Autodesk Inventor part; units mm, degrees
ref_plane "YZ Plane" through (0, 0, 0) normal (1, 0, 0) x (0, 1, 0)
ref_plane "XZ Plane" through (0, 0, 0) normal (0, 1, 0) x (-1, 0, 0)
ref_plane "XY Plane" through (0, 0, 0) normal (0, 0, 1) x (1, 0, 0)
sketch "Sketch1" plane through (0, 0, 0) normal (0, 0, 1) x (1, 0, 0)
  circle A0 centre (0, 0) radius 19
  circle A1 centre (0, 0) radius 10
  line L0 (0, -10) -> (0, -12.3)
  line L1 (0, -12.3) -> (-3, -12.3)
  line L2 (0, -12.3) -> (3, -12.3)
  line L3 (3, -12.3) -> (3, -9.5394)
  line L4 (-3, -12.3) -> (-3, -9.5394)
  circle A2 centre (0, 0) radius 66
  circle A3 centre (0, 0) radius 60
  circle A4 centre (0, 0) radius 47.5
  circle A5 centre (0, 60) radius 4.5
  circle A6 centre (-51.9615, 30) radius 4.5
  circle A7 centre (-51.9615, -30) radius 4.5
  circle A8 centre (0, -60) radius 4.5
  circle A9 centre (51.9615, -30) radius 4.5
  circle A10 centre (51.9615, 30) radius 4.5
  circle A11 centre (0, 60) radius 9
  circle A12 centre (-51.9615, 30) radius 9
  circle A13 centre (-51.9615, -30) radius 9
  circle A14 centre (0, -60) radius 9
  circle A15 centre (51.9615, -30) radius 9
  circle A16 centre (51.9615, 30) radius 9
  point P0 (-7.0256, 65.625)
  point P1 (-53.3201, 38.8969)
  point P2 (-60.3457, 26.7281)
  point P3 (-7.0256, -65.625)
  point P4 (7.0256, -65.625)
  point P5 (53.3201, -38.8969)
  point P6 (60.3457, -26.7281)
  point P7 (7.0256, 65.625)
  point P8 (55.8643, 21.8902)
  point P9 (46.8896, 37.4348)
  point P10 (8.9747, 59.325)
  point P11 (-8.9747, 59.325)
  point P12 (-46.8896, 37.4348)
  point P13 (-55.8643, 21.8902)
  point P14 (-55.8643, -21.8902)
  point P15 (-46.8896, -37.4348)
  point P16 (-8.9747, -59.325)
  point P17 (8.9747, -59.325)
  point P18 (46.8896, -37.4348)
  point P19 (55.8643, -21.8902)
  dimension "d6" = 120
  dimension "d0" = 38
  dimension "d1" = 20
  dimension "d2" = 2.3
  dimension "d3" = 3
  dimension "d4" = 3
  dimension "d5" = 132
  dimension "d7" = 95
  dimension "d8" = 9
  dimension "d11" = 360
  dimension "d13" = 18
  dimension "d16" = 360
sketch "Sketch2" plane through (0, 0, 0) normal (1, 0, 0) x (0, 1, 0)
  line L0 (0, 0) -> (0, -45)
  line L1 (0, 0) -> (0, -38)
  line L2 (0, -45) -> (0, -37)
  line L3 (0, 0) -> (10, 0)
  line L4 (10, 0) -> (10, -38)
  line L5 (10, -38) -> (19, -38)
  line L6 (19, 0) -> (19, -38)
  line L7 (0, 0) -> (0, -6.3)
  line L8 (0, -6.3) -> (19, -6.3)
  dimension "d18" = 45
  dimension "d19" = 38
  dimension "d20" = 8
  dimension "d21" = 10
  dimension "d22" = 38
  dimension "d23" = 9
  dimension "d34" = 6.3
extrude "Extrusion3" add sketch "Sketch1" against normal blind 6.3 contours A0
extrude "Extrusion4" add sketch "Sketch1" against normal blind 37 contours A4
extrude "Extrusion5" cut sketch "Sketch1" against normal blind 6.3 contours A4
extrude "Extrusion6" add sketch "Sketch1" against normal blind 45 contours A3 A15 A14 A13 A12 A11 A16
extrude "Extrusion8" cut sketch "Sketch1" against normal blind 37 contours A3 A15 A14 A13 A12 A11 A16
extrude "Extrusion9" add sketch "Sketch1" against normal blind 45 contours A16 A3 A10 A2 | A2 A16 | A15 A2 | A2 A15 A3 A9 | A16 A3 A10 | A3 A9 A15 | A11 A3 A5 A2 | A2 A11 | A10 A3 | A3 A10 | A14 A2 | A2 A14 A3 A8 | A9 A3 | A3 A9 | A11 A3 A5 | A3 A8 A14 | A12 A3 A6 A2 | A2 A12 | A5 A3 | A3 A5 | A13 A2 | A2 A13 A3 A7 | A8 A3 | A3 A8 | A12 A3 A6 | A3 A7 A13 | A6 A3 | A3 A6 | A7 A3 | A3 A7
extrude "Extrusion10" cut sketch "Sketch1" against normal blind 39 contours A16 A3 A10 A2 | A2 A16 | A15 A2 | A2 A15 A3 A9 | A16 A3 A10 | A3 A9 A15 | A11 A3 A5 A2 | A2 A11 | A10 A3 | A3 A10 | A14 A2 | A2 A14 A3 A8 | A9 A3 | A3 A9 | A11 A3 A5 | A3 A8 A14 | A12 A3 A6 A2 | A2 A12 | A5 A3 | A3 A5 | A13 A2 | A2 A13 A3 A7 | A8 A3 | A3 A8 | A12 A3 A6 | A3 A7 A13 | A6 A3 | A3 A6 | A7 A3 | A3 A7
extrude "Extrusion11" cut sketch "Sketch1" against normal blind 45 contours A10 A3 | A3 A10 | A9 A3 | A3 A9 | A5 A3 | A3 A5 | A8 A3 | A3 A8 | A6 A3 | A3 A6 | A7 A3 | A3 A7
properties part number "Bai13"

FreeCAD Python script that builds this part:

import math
import FreeCAD as App
import Part
import Sketcher
from FreeCAD import Vector

doc = App.newDocument("Part")
body = doc.addObject("PartDesign::Body", "Body")
body.AllowCompound = True

sketch1 = doc.addObject("Sketcher::SketchObject", "Sketch")
body.addObject(sketch1)
sketch1.AttachmentSupport = (doc.XY_Plane, [""])
sketch1.MapMode = "FlatFace"
sketch1.addGeometry([
    Part.Circle(Vector(0, 0, 0), Vector(0, 0, 1), 19),
    Part.ArcOfCircle(Part.Circle(Vector(0, 0, 0), Vector(0, 0, 1), 10), math.radians(-72.542411), math.radians(252.542411)),
    Part.LineSegment(Vector(3, -9.5394, 0), Vector(3, -12.3, 0)),
    Part.LineSegment(Vector(3, -12.3, 0), Vector(-3, -12.3, 0)),
    Part.LineSegment(Vector(-3, -12.3, 0), Vector(-3, -9.5394, 0)),
], False)
sketch1.addConstraint([
    Sketcher.Constraint("Coincident", 1, 1, 2, 1),
    Sketcher.Constraint("Coincident", 2, 2, 3, 1),
    Sketcher.Constraint("Coincident", 3, 2, 4, 1),
    Sketcher.Constraint("Coincident", 4, 2, 1, 2),
    Sketcher.Constraint("Vertical", 2),
    Sketcher.Constraint("Horizontal", 3),
    Sketcher.Constraint("Vertical", 4),
    Sketcher.Constraint("Coincident", 0, 3, -1, 1),
    Sketcher.Constraint("Coincident", 1, 3, -1, 1),
    Sketcher.Constraint("Horizontal", 1, 1, 4, 2),
    Sketcher.Constraint("Diameter", 0, 38.0),
    Sketcher.Constraint("Radius", 1, 10.0),
    Sketcher.Constraint("DistanceX", -1, 1, 1, 1, 3.0),
    Sketcher.Constraint("DistanceY", 2, 2, -1, 1, 12.3),
])
pad1 = doc.addObject("PartDesign::Pad", "Pad")
body.addObject(pad1)
pad1.Profile = sketch1
pad1.Length = 6.3
pad1.Reversed = True

sketch2 = doc.addObject("Sketcher::SketchObject", "Sketch001")
body.addObject(sketch2)
sketch2.AttachmentSupport = (doc.XY_Plane, [""])
sketch2.MapMode = "FlatFace"
sketch2.addGeometry([
    Part.Circle(Vector(0, 0, 0), Vector(0, 0, 1), 47.5),
    Part.Circle(Vector(0, 0, 0), Vector(0, 0, 1), 19),
], False)
sketch2.addConstraint([
    Sketcher.Constraint("Coincident", 0, 3, -1, 1),
    Sketcher.Constraint("Coincident", 1, 3, -1, 1),
    Sketcher.Constraint("Diameter", 0, 95.0),
    Sketcher.Constraint("Diameter", 1, 38.0),
])
pad2 = doc.addObject("PartDesign::Pad", "Pad001")
body.addObject(pad2)
pad2.Profile = sketch2
pad2.Length = 37
pad2.Reversed = True

sketch3 = doc.addObject("Sketcher::SketchObject", "Sketch002")
body.addObject(sketch3)
sketch3.AttachmentSupport = (doc.XY_Plane, [""])
sketch3.MapMode = "FlatFace"
sketch3.addGeometry([
    Part.Circle(Vector(0, 0, 0), Vector(0, 0, 1), 47.5),
    Part.Circle(Vector(0, 0, 0), Vector(0, 0, 1), 19),
], False)
sketch3.addConstraint([
    Sketcher.Constraint("Coincident", 0, 3, -1, 1),
    Sketcher.Constraint("Coincident", 1, 3, -1, 1),
    Sketcher.Constraint("Diameter", 0, 95.0),
    Sketcher.Constraint("Diameter", 1, 38.0),
])
pocket1 = doc.addObject("PartDesign::Pocket", "Pocket")
body.addObject(pocket1)
pocket1.Profile = sketch3
pocket1.Length = 6.3

sketch4 = doc.addObject("Sketcher::SketchObject", "Sketch003")
body.addObject(sketch4)
sketch4.AttachmentSupport = (doc.XY_Plane, [""])
sketch4.MapMode = "FlatFace"
sketch4.addGeometry([
    Part.ArcOfCircle(Part.Circle(Vector(0, 0, 0), Vector(0, 0, 1), 60), math.radians(-21.397565), math.radians(21.397565)),
    Part.ArcOfCircle(Part.Circle(Vector(51.9615, 30, 0), Vector(0, 0, 1), 9), math.radians(124.301101), math.radians(295.698922)),
    Part.ArcOfCircle(Part.Circle(Vector(0, 0, 0), Vector(0, 0, 1), 60), math.radians(38.602458), math.radians(81.397555)),
    Part.ArcOfCircle(Part.Circle(Vector(0, 60, 0), Vector(0, 0, 1), 9), math.radians(-175.698778), math.radians(-4.301222)),
    Part.ArcOfCircle(Part.Circle(Vector(0, 0, 0), Vector(0, 0, 1), 60), math.radians(98.602445), math.radians(141.397542)),
    Part.ArcOfCircle(Part.Circle(Vector(-51.9615, 30, 0), Vector(0, 0, 1), 9), math.radians(-115.698922), math.radians(55.698899)),
    Part.ArcOfCircle(Part.Circle(Vector(0, 0, 0), Vector(0, 0, 1), 60), math.radians(158.602435), math.radians(201.397565)),
    Part.ArcOfCircle(Part.Circle(Vector(-51.9615, -30, 0), Vector(0, 0, 1), 9), math.radians(-55.698899), math.radians(115.698922)),
    Part.ArcOfCircle(Part.Circle(Vector(0, 0, 0), Vector(0, 0, 1), 60), math.radians(-141.397542), math.radians(-98.602445)),
    Part.ArcOfCircle(Part.Circle(Vector(0, -60, 0), Vector(0, 0, 1), 9), math.radians(4.301222), math.radians(175.698778)),
    Part.ArcOfCircle(Part.Circle(Vector(0, 0, 0), Vector(0, 0, 1), 60), math.radians(-81.397555), math.radians(-38.602458)),
    Part.ArcOfCircle(Part.Circle(Vector(51.9615, -30, 0), Vector(0, 0, 1), 9), math.radians(64.301078), math.radians(235.698899)),
    Part.Circle(Vector(0, 0, 0), Vector(0, 0, 1), 47.5),
], False)
sketch4.addConstraint([
    Sketcher.Constraint("Coincident", 0, 2, 1, 2),
    Sketcher.Constraint("Coincident", 1, 1, 2, 1),
    Sketcher.Constraint("Coincident", 2, 2, 3, 2),
    Sketcher.Constraint("Coincident", 3, 1, 4, 1),
    Sketcher.Constraint("Coincident", 4, 2, 5, 2),
    Sketcher.Constraint("Coincident", 5, 1, 6, 1),
    Sketcher.Constraint("Coincident", 6, 2, 7, 2),
    Sketcher.Constraint("Coincident", 7, 1, 8, 1),
    Sketcher.Constraint("Coincident", 8, 2, 9, 2),
    Sketcher.Constraint("Coincident", 9, 1, 10, 1),
    Sketcher.Constraint("Coincident", 10, 2, 11, 2),
    Sketcher.Constraint("Coincident", 11, 1, 0, 1),
    Sketcher.Constraint("Coincident", 0, 3, -1, 1),
    Sketcher.Constraint("Coincident", 2, 3, -1, 1),
    Sketcher.Constraint("Coincident", 4, 3, -1, 1),
    Sketcher.Constraint("Coincident", 6, 3, -1, 1),
    Sketcher.Constraint("Coincident", 8, 3, -1, 1),
    Sketcher.Constraint("Coincident", 10, 3, -1, 1),
    Sketcher.Constraint("Coincident", 12, 3, -1, 1),
    Sketcher.Constraint("Equal", 0, 2),
    Sketcher.Constraint("Equal", 1, 3),
    Sketcher.Constraint("Equal", 2, 4),
    Sketcher.Constraint("Equal", 3, 5),
    Sketcher.Constraint("Equal", 4, 6),
    Sketcher.Constraint("Equal", 5, 7),
    Sketcher.Constraint("Equal", 6, 8),
    Sketcher.Constraint("Equal", 7, 9),
    Sketcher.Constraint("Equal", 8, 10),
    Sketcher.Constraint("Equal", 9, 11),
    Sketcher.Constraint("Symmetric", 1, 3, 7, 3, -1, 1),
    Sketcher.Constraint("Symmetric", 3, 3, 9, 3, -1, 1),
    Sketcher.Constraint("Symmetric", 5, 3, 11, 3, -1, 1),
    Sketcher.Constraint("Symmetric", 1, 3, 5, 3, -2),
    Sketcher.Constraint("PointOnObject", 3, 3, -2),
    Sketcher.Constraint("Diameter", 12, 95.0),
    Sketcher.Constraint("Radius", 0, 60.0),
    Sketcher.Constraint("Radius", 1, 9.0),
    Sketcher.Constraint("DistanceY", -1, 1, 1, 3, 30.0),
    Sketcher.Constraint("DistanceY", -1, 1, 3, 3, 60.0),
    Sketcher.Constraint("DistanceX", 5, 3, 1, 3, 103.923),
])
pad3 = doc.addObject("PartDesign::Pad", "Pad002")
body.addObject(pad3)
pad3.Profile = sketch4
pad3.Length = 45
pad3.Reversed = True

sketch5 = doc.addObject("Sketcher::SketchObject", "Sketch004")
body.addObject(sketch5)
sketch5.AttachmentSupport = (doc.XY_Plane, [""])
sketch5.MapMode = "FlatFace"
sketch5.addGeometry([
    Part.ArcOfCircle(Part.Circle(Vector(0, 0, 0), Vector(0, 0, 1), 60), math.radians(-21.397565), math.radians(21.397565)),
    Part.ArcOfCircle(Part.Circle(Vector(51.9615, 30, 0), Vector(0, 0, 1), 9), math.radians(124.301101), math.radians(295.698922)),
    Part.ArcOfCircle(Part.Circle(Vector(0, 0, 0), Vector(0, 0, 1), 60), math.radians(38.602458), math.radians(81.397555)),
    Part.ArcOfCircle(Part.Circle(Vector(0, 60, 0), Vector(0, 0, 1), 9), math.radians(-175.698778), math.radians(-4.301222)),
    Part.ArcOfCircle(Part.Circle(Vector(0, 0, 0), Vector(0, 0, 1), 60), math.radians(98.602445), math.radians(141.397542)),
    Part.ArcOfCircle(Part.Circle(Vector(-51.9615, 30, 0), Vector(0, 0, 1), 9), math.radians(-115.698922), math.radians(55.698899)),
    Part.ArcOfCircle(Part.Circle(Vector(0, 0, 0), Vector(0, 0, 1), 60), math.radians(158.602435), math.radians(201.397565)),
    Part.ArcOfCircle(Part.Circle(Vector(-51.9615, -30, 0), Vector(0, 0, 1), 9), math.radians(-55.698899), math.radians(115.698922)),
    Part.ArcOfCircle(Part.Circle(Vector(0, 0, 0), Vector(0, 0, 1), 60), math.radians(-141.397542), math.radians(-98.602445)),
    Part.ArcOfCircle(Part.Circle(Vector(0, -60, 0), Vector(0, 0, 1), 9), math.radians(4.301222), math.radians(175.698778)),
    Part.ArcOfCircle(Part.Circle(Vector(0, 0, 0), Vector(0, 0, 1), 60), math.radians(-81.397555), math.radians(-38.602458)),
    Part.ArcOfCircle(Part.Circle(Vector(51.9615, -30, 0), Vector(0, 0, 1), 9), math.radians(64.301078), math.radians(235.698899)),
    Part.Circle(Vector(0, 0, 0), Vector(0, 0, 1), 47.5),
], False)
sketch5.addConstraint([
    Sketcher.Constraint("Coincident", 0, 2, 1, 2),
    Sketcher.Constraint("Coincident", 1, 1, 2, 1),
    Sketcher.Constraint("Coincident", 2, 2, 3, 2),
    Sketcher.Constraint("Coincident", 3, 1, 4, 1),
    Sketcher.Constraint("Coincident", 4, 2, 5, 2),
    Sketcher.Constraint("Coincident", 5, 1, 6, 1),
    Sketcher.Constraint("Coincident", 6, 2, 7, 2),
    Sketcher.Constraint("Coincident", 7, 1, 8, 1),
    Sketcher.Constraint("Coincident", 8, 2, 9, 2),
    Sketcher.Constraint("Coincident", 9, 1, 10, 1),
    Sketcher.Constraint("Coincident", 10, 2, 11, 2),
    Sketcher.Constraint("Coincident", 11, 1, 0, 1),
    Sketcher.Constraint("Coincident", 0, 3, -1, 1),
    Sketcher.Constraint("Coincident", 2, 3, -1, 1),
    Sketcher.Constraint("Coincident", 4, 3, -1, 1),
    Sketcher.Constraint("Coincident", 6, 3, -1, 1),
    Sketcher.Constraint("Coincident", 8, 3, -1, 1),
    Sketcher.Constraint("Coincident", 10, 3, -1, 1),
    Sketcher.Constraint("Coincident", 12, 3, -1, 1),
    Sketcher.Constraint("Equal", 0, 2),
    Sketcher.Constraint("Equal", 1, 3),
    Sketcher.Constraint("Equal", 2, 4),
    Sketcher.Constraint("Equal", 3, 5),
    Sketcher.Constraint("Equal", 4, 6),
    Sketcher.Constraint("Equal", 5, 7),
    Sketcher.Constraint("Equal", 6, 8),
    Sketcher.Constraint("Equal", 7, 9),
    Sketcher.Constraint("Equal", 8, 10),
    Sketcher.Constraint("Equal", 9, 11),
    Sketcher.Constraint("Symmetric", 1, 3, 7, 3, -1, 1),
    Sketcher.Constraint("Symmetric", 3, 3, 9, 3, -1, 1),
    Sketcher.Constraint("Symmetric", 5, 3, 11, 3, -1, 1),
    Sketcher.Constraint("Symmetric", 1, 3, 5, 3, -2),
    Sketcher.Constraint("PointOnObject", 3, 3, -2),
    Sketcher.Constraint("Diameter", 12, 95.0),
    Sketcher.Constraint("Radius", 0, 60.0),
    Sketcher.Constraint("Radius", 1, 9.0),
    Sketcher.Constraint("DistanceY", -1, 1, 1, 3, 30.0),
    Sketcher.Constraint("DistanceY", -1, 1, 3, 3, 60.0),
    Sketcher.Constraint("DistanceX", 5, 3, 1, 3, 103.923),
])
pocket2 = doc.addObject("PartDesign::Pocket", "Pocket001")
body.addObject(pocket2)
pocket2.Profile = sketch5
pocket2.Length = 37

sketch6 = doc.addObject("Sketcher::SketchObject", "Sketch005")
body.addObject(sketch6)
sketch6.AttachmentSupport = (doc.XY_Plane, [""])
sketch6.MapMode = "FlatFace"
sketch6.addGeometry([
    Part.Circle(Vector(51.9615, 30, 0), Vector(0, 0, 1), 9),
    Part.Circle(Vector(51.9615, -30, 0), Vector(0, 0, 1), 9),
    Part.Circle(Vector(0, 60, 0), Vector(0, 0, 1), 9),
    Part.Circle(Vector(0, -60, 0), Vector(0, 0, 1), 9),
    Part.Circle(Vector(-51.9615, 30, 0), Vector(0, 0, 1), 9),
    Part.Circle(Vector(-51.9615, -30, 0), Vector(0, 0, 1), 9),
], False)
sketch6.addConstraint([
    Sketcher.Constraint("Equal", 0, 1),
    Sketcher.Constraint("Equal", 1, 2),
    Sketcher.Constraint("Equal", 2, 3),
    Sketcher.Constraint("Equal", 3, 4),
    Sketcher.Constraint("Equal", 4, 5),
    Sketcher.Constraint("Symmetric", 2, 3, 3, 3, -1, 1),
    Sketcher.Constraint("Symmetric", 1, 3, 4, 3, -1, 1),
    Sketcher.Constraint("Symmetric", 0, 3, 5, 3, -1, 1),
    Sketcher.Constraint("Symmetric", 0, 3, 4, 3, -2),
    Sketcher.Constraint("PointOnObject", 2, 3, -2),
    Sketcher.Constraint("Diameter", 0, 18.0),
    Sketcher.Constraint("DistanceY", 3, 3, 2, 3, 120.0),
    Sketcher.Constraint("DistanceY", -1, 1, 0, 3, 30.0),
    Sketcher.Constraint("DistanceX", 4, 3, 0, 3, 103.923),
])
pad4 = doc.addObject("PartDesign::Pad", "Pad003")
body.addObject(pad4)
pad4.Profile = sketch6
pad4.Length = 45
pad4.Reversed = True

sketch7 = doc.addObject("Sketcher::SketchObject", "Sketch006")
body.addObject(sketch7)
sketch7.AttachmentSupport = (doc.XY_Plane, [""])
sketch7.MapMode = "FlatFace"
sketch7.addGeometry([
    Part.Circle(Vector(51.9615, 30, 0), Vector(0, 0, 1), 9),
    Part.Circle(Vector(51.9615, -30, 0), Vector(0, 0, 1), 9),
    Part.Circle(Vector(0, 60, 0), Vector(0, 0, 1), 9),
    Part.Circle(Vector(0, -60, 0), Vector(0, 0, 1), 9),
    Part.Circle(Vector(-51.9615, 30, 0), Vector(0, 0, 1), 9),
    Part.Circle(Vector(-51.9615, -30, 0), Vector(0, 0, 1), 9),
], False)
sketch7.addConstraint([
    Sketcher.Constraint("Equal", 0, 1),
    Sketcher.Constraint("Equal", 1, 2),
    Sketcher.Constraint("Equal", 2, 3),
    Sketcher.Constraint("Equal", 3, 4),
    Sketcher.Constraint("Equal", 4, 5),
    Sketcher.Constraint("Symmetric", 2, 3, 3, 3, -1, 1),
    Sketcher.Constraint("Symmetric", 1, 3, 4, 3, -1, 1),
    Sketcher.Constraint("Symmetric", 0, 3, 5, 3, -1, 1),
    Sketcher.Constraint("Symmetric", 0, 3, 4, 3, -2),
    Sketcher.Constraint("PointOnObject", 2, 3, -2),
    Sketcher.Constraint("Diameter", 0, 18.0),
    Sketcher.Constraint("DistanceY", 3, 3, 2, 3, 120.0),
    Sketcher.Constraint("DistanceY", -1, 1, 0, 3, 30.0),
    Sketcher.Constraint("DistanceX", 4, 3, 0, 3, 103.923),
])
pocket3 = doc.addObject("PartDesign::Pocket", "Pocket002")
body.addObject(pocket3)
pocket3.Profile = sketch7
pocket3.Length = 39

sketch8 = doc.addObject("Sketcher::SketchObject", "Sketch007")
body.addObject(sketch8)
sketch8.AttachmentSupport = (doc.XY_Plane, [""])
sketch8.MapMode = "FlatFace"
sketch8.addGeometry([
    Part.Circle(Vector(51.9615, 30, 0), Vector(0, 0, 1), 4.5),
    Part.Circle(Vector(51.9615, -30, 0), Vector(0, 0, 1), 4.5),
    Part.Circle(Vector(0, 60, 0), Vector(0, 0, 1), 4.5),
    Part.Circle(Vector(0, -60, 0), Vector(0, 0, 1), 4.5),
    Part.Circle(Vector(-51.9615, 30, 0), Vector(0, 0, 1), 4.5),
    Part.Circle(Vector(-51.9615, -30, 0), Vector(0, 0, 1), 4.5),
], False)
sketch8.addConstraint([
    Sketcher.Constraint("Equal", 0, 1),
    Sketcher.Constraint("Equal", 1, 2),
    Sketcher.Constraint("Equal", 2, 3),
    Sketcher.Constraint("Equal", 3, 4),
    Sketcher.Constraint("Equal", 4, 5),
    Sketcher.Constraint("Symmetric", 2, 3, 3, 3, -1, 1),
    Sketcher.Constraint("Symmetric", 1, 3, 4, 3, -1, 1),
    Sketcher.Constraint("Symmetric", 0, 3, 5, 3, -1, 1),
    Sketcher.Constraint("Symmetric", 0, 3, 4, 3, -2),
    Sketcher.Constraint("PointOnObject", 2, 3, -2),
    Sketcher.Constraint("Diameter", 0, 9.0),
    Sketcher.Constraint("DistanceY", 3, 3, 2, 3, 120.0),
    Sketcher.Constraint("DistanceY", -1, 1, 0, 3, 30.0),
    Sketcher.Constraint("DistanceX", 4, 3, 0, 3, 103.923),
])
pocket4 = doc.addObject("PartDesign::Pocket", "Pocket003")
body.addObject(pocket4)
pocket4.Profile = sketch8
pocket4.Length = 45

doc.recompute()
